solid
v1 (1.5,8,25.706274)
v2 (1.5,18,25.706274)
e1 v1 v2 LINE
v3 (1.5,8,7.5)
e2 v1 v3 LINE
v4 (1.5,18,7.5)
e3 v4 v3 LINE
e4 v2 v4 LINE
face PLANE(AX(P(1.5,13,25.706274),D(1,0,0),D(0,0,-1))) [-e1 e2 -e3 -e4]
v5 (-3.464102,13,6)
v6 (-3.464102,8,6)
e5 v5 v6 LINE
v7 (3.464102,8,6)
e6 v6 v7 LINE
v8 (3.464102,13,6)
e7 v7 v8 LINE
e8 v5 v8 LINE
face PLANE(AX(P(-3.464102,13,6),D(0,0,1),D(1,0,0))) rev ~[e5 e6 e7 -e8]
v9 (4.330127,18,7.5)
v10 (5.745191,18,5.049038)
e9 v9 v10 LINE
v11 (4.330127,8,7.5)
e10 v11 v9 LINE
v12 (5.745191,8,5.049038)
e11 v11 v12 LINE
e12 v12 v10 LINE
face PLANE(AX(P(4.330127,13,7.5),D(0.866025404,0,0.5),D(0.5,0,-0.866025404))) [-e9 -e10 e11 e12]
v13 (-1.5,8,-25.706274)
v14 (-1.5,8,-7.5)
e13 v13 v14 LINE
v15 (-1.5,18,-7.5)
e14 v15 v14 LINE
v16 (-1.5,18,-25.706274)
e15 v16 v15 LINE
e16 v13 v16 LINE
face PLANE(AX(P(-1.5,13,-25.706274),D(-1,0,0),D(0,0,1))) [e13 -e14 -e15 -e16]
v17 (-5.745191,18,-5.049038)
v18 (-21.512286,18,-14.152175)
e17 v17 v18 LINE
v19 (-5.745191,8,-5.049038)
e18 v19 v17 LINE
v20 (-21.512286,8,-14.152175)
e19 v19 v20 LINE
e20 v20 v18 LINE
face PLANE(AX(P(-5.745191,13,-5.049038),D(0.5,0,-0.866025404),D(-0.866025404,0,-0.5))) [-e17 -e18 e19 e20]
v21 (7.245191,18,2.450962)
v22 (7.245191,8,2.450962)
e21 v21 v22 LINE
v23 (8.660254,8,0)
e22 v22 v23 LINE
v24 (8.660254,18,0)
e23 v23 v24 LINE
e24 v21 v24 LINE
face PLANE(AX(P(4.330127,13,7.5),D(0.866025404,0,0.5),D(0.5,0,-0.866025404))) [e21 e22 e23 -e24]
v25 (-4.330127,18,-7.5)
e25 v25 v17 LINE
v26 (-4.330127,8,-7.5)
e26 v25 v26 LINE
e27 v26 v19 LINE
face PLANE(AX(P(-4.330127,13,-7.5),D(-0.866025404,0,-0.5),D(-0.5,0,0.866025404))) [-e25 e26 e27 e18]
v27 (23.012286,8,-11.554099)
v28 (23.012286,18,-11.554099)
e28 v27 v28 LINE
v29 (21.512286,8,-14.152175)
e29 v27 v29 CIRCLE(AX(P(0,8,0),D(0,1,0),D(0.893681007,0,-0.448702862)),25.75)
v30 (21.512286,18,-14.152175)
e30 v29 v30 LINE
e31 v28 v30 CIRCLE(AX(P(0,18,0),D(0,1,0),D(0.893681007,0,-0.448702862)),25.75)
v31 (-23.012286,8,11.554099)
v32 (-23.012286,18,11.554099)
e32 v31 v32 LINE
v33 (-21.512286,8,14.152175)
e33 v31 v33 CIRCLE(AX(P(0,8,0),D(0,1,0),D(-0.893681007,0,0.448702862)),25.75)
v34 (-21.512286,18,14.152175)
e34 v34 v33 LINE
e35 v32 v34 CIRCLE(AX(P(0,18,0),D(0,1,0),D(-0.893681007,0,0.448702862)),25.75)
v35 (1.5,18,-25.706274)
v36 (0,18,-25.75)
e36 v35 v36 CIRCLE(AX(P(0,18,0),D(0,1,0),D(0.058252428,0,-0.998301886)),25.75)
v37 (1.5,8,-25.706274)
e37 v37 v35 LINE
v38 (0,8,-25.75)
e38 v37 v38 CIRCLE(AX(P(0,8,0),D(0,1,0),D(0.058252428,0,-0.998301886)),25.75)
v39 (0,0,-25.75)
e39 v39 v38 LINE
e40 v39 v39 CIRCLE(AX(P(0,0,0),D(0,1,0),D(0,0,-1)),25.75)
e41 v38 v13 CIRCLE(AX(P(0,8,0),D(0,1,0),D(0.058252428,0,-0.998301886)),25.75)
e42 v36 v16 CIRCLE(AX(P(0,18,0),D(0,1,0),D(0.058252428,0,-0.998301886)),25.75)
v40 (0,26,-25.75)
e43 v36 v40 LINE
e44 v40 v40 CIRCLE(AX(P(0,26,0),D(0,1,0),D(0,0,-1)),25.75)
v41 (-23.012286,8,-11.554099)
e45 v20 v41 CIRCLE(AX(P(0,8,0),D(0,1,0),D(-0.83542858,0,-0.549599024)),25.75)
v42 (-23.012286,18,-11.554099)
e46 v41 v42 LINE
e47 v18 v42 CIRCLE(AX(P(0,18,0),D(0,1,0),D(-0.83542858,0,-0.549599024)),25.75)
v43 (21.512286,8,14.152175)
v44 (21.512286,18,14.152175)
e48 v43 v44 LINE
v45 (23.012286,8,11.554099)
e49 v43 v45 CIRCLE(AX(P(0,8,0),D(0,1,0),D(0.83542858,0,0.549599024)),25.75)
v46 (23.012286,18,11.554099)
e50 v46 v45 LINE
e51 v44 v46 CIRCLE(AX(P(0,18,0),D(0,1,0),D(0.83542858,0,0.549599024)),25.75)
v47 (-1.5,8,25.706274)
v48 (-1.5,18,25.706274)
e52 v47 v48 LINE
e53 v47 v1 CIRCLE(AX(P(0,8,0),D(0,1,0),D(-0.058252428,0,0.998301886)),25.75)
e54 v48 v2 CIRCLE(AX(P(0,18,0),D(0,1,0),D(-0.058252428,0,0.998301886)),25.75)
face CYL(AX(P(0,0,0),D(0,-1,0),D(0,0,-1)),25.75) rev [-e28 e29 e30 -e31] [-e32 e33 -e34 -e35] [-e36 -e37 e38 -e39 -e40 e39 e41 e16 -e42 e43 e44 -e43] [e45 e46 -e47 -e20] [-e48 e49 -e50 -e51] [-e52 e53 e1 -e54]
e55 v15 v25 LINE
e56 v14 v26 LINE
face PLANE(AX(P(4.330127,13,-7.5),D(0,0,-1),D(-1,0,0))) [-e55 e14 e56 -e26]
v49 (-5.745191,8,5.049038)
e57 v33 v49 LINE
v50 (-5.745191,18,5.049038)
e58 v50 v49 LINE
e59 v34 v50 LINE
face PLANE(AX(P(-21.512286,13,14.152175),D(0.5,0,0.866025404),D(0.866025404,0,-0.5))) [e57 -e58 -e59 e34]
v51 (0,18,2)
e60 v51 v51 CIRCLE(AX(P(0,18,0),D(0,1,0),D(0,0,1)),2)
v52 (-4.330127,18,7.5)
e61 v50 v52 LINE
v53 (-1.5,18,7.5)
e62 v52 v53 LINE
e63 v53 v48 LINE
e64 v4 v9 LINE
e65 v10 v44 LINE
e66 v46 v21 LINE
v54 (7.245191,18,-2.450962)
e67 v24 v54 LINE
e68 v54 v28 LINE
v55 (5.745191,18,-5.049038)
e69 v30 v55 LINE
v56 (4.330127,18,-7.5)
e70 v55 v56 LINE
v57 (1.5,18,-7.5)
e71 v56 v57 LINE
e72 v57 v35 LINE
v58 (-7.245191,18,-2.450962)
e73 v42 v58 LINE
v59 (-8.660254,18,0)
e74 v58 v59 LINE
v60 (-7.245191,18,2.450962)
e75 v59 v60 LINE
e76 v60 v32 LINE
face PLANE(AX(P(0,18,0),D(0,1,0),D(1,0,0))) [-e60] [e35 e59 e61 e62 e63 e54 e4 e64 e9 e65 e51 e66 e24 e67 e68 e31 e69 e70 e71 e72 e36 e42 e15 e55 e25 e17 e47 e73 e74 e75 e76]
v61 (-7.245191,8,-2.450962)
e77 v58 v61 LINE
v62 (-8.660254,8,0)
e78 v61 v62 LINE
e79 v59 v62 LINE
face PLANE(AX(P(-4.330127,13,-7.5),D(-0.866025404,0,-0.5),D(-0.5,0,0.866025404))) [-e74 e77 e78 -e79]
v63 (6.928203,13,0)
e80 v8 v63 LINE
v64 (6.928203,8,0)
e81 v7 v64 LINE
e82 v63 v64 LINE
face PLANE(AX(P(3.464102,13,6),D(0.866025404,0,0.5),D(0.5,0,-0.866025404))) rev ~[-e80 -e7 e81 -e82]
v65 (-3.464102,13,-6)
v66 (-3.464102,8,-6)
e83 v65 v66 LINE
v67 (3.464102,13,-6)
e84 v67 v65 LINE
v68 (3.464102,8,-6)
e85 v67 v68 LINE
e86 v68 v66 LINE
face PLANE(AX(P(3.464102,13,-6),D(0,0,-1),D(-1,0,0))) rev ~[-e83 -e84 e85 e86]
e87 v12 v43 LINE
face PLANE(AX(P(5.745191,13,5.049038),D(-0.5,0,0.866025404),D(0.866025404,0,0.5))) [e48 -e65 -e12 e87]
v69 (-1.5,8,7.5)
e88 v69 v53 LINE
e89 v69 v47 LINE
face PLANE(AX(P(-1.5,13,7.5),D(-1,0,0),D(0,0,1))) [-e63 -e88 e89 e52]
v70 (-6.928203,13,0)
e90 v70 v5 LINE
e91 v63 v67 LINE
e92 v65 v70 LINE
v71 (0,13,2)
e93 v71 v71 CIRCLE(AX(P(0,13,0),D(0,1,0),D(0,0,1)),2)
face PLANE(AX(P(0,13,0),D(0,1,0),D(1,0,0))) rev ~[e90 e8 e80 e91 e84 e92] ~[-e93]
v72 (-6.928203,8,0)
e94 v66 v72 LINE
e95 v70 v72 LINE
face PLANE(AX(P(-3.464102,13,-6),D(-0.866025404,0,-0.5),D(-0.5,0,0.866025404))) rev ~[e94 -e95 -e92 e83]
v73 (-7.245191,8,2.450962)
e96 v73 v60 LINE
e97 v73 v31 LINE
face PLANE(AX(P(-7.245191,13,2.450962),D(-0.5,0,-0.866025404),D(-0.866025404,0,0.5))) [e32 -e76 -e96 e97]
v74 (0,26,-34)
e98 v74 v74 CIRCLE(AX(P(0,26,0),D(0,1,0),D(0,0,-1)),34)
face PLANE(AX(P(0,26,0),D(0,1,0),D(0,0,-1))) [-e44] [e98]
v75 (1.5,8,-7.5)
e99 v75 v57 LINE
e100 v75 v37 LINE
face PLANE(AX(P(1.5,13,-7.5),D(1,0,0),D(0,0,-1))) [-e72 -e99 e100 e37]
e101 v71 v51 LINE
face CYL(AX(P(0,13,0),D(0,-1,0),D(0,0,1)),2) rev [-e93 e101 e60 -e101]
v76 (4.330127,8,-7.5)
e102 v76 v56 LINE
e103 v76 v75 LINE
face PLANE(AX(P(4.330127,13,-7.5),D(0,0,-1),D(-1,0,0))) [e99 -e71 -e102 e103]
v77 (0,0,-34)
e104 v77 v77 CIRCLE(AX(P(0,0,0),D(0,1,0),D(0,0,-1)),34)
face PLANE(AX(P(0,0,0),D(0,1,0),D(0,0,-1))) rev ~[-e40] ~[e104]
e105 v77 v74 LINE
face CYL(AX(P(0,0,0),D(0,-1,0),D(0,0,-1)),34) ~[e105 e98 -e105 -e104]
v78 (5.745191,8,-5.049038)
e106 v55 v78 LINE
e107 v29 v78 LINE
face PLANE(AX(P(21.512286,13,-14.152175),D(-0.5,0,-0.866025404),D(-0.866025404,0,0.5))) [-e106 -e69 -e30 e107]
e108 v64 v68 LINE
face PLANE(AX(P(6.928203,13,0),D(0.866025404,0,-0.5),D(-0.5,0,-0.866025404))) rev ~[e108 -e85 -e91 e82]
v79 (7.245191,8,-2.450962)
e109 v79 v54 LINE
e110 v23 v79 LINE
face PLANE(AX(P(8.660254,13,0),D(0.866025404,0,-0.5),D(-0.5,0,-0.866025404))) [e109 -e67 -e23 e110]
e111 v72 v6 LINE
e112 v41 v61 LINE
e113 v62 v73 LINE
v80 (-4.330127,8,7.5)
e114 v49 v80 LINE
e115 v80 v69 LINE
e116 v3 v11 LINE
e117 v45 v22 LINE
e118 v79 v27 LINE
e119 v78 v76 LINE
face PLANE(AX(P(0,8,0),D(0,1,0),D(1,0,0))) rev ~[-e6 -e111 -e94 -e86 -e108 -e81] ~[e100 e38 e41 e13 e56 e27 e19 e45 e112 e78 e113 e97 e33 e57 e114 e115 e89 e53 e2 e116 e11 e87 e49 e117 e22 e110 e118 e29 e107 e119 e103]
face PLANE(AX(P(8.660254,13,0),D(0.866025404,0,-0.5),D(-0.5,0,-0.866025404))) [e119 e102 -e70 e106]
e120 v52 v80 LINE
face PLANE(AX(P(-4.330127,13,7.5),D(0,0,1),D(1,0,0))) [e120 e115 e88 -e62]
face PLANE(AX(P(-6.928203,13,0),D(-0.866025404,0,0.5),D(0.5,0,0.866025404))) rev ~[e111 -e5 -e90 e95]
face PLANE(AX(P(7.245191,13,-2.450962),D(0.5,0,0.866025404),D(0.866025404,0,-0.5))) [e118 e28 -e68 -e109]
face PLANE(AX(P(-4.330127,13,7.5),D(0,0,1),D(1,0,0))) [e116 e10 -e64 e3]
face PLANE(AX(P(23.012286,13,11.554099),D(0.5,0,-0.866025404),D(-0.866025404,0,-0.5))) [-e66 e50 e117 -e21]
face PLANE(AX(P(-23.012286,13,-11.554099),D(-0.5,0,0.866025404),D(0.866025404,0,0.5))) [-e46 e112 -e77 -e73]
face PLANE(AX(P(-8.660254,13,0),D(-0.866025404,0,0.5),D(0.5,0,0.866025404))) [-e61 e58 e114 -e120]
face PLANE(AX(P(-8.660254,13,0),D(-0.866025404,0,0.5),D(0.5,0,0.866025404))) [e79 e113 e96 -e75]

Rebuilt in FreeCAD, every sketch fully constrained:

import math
import FreeCAD as App
import Part
import Sketcher
Q = App.Units.Quantity


def add_polygon(sketch, points):
    """Adds a closed chain of lines whose ends are joined by coincident constraints."""
    first, n = sketch.GeometryCount, len(points)
    for a, b in zip(points, points[1:] + points[:1]):
        sketch.addGeometry(Part.LineSegment(App.Vector(*a, 0), App.Vector(*b, 0)), False)
    for i in range(n):
        sketch.addConstraint(Sketcher.Constraint("Coincident", first + i, 2, first + (i + 1) % n, 1))

doc = App.newDocument("Part")
params = doc.addObject("Spreadsheet::Sheet", "Params")
for row, (alias, value) in enumerate([
    ("sketch1_diameter", "68 mm"),
    ("sketch1_diameter2", "51.5 mm"),
    ("pad1_length", "26 mm"),
    ("sketch2_radius", "25.75 mm"),
    ("pad2_length", "10 mm"),
    ("sketch3_diameter", "4 mm"),
    ("pad3_length", "5 mm"),
], start=1):
    params.set(f"A{row}", alias)
    params.set(f"B{row}", "=" + value)
    params.setAlias(f"B{row}", alias)

body = doc.addObject("PartDesign::Body", "Body")

# Sketch on XZ plane
sketch1 = doc.addObject("Sketcher::SketchObject", "Sketch")
body.addObject(sketch1)
sketch1.AttachmentSupport = (doc.XZ_Plane, [""])
sketch1.MapMode = "FlatFace"
sketch1.addGeometry([
    Part.Circle(App.Vector(0, 0, 0), App.Vector(0, 0, 1), 34),
    Part.Circle(App.Vector(0, 0, 0), App.Vector(0, 0, 1), 26),
], False)
sketch1.addConstraint([
    Sketcher.Constraint("Coincident", 0, 3, -1, 1),
    Sketcher.Constraint("Coincident", 1, 3, -1, 1),
    Sketcher.Constraint("Diameter", 0, Q("68 mm")),
    Sketcher.Constraint("Diameter", 1, Q("51.5 mm")),
])
sketch1.setExpression("Constraints[2]", "Params.sketch1_diameter")
sketch1.setExpression("Constraints[3]", "Params.sketch1_diameter2")
pad1 = doc.addObject("PartDesign::Pad", "Pad")
body.addObject(pad1)
pad1.Profile = sketch1
pad1.setExpression("Length", "Params.pad1_length")
pad1.Reversed = True

# Sketch on XZ plane
sketch2 = doc.addObject("Sketcher::SketchObject", "Sketch001")
body.addObject(sketch2)
sketch2.AttachmentSupport = (doc.XZ_Plane, [""])
sketch2.MapMode = "FlatFace"
sketch2.AttachmentOffset = App.Placement(App.Vector(0, 0, -13), App.Rotation())
sketch2.addGeometry(Part.LineSegment(App.Vector(7.2, -2.5, 0), App.Vector(23, -11.6, 0)), False)  # 0
sketch2.addGeometry(Part.ArcOfCircle(Part.Circle(App.Vector(0, 0, 0), App.Vector(0, 0, 1), 25.8), math.radians(-33.34), math.radians(-26.66)), False)  # 1
sketch2.addGeometry(Part.LineSegment(App.Vector(21.5, -14.2, 0), App.Vector(5.7, -5, 0)), False)  # 2
sketch2.addGeometry(Part.LineSegment(App.Vector(5.7, -5, 0), App.Vector(4.3, -7.5, 0)), False)  # 3
sketch2.addGeometry(Part.LineSegment(App.Vector(4.3, -7.5, 0), App.Vector(1.5, -7.5, 0)), False)  # 4
sketch2.addGeometry(Part.LineSegment(App.Vector(1.5, -7.5, 0), App.Vector(1.5, -25.7, 0)), False)  # 5
sketch2.addGeometry(Part.ArcOfCircle(Part.Circle(App.Vector(0, 0, 0), App.Vector(0, 0, 1), 25.7), math.radians(-93.34), math.radians(-86.66)), False)  # 6
sketch2.addGeometry(Part.LineSegment(App.Vector(-1.5, -25.7, 0), App.Vector(-1.5, -7.5, 0)), False)  # 7
sketch2.addGeometry(Part.LineSegment(App.Vector(-1.5, -7.5, 0), App.Vector(-4.3, -7.5, 0)), False)  # 8
sketch2.addGeometry(Part.LineSegment(App.Vector(-4.3, -7.5, 0), App.Vector(-5.7, -5, 0)), False)  # 9
sketch2.addGeometry(Part.LineSegment(App.Vector(-5.7, -5, 0), App.Vector(-21.5, -14.2, 0)), False)  # 10
sketch2.addGeometry(Part.ArcOfCircle(Part.Circle(App.Vector(0, 0, 0), App.Vector(0, 0, 1), 25.8), math.radians(-153.34), math.radians(-146.66)), False)  # 11
sketch2.addGeometry(Part.LineSegment(App.Vector(-23, -11.6, 0), App.Vector(-7.2, -2.5, 0)), False)  # 12
sketch2.addGeometry(Part.LineSegment(App.Vector(-7.2, -2.5, 0), App.Vector(-8.7, 0, 0)), False)  # 13
sketch2.addGeometry(Part.LineSegment(App.Vector(-8.7, 0, 0), App.Vector(-7.2, 2.5, 0)), False)  # 14
sketch2.addGeometry(Part.LineSegment(App.Vector(-7.2, 2.5, 0), App.Vector(-23, 11.6, 0)), False)  # 15
sketch2.addGeometry(Part.ArcOfCircle(Part.Circle(App.Vector(0, 0, 0), App.Vector(0, 0, 1), 25.8), math.radians(146.66), math.radians(153.34)), False)  # 16
sketch2.addGeometry(Part.LineSegment(App.Vector(-21.5, 14.2, 0), App.Vector(-5.7, 5, 0)), False)  # 17
sketch2.addGeometry(Part.LineSegment(App.Vector(-5.7, 5, 0), App.Vector(-4.3, 7.5, 0)), False)  # 18
sketch2.addGeometry(Part.LineSegment(App.Vector(-4.3, 7.5, 0), App.Vector(-1.5, 7.5, 0)), False)  # 19
sketch2.addGeometry(Part.LineSegment(App.Vector(-1.5, 7.5, 0), App.Vector(-1.5, 25.7, 0)), False)  # 20
sketch2.addGeometry(Part.ArcOfCircle(Part.Circle(App.Vector(0, 0, 0), App.Vector(0, 0, 1), 25.7), math.radians(86.66), math.radians(93.34)), False)  # 21
sketch2.addGeometry(Part.LineSegment(App.Vector(1.5, 25.7, 0), App.Vector(1.5, 7.5, 0)), False)  # 22
sketch2.addGeometry(Part.LineSegment(App.Vector(1.5, 7.5, 0), App.Vector(4.3, 7.5, 0)), False)  # 23
sketch2.addGeometry(Part.LineSegment(App.Vector(4.3, 7.5, 0), App.Vector(5.7, 5, 0)), False)  # 24
sketch2.addGeometry(Part.LineSegment(App.Vector(5.7, 5, 0), App.Vector(21.5, 14.2, 0)), False)  # 25
sketch2.addGeometry(Part.ArcOfCircle(Part.Circle(App.Vector(0, 0, 0), App.Vector(0, 0, 1), 25.8), math.radians(26.66), math.radians(33.34)), False)  # 26
sketch2.addGeometry(Part.LineSegment(App.Vector(23, 11.6, 0), App.Vector(7.2, 2.5, 0)), False)  # 27
sketch2.addGeometry(Part.LineSegment(App.Vector(7.2, 2.5, 0), App.Vector(8.7, 0, 0)), False)  # 28
sketch2.addGeometry(Part.LineSegment(App.Vector(8.7, 0, 0), App.Vector(7.2, -2.5, 0)), False)  # 29
add_polygon(sketch2, [(3.5, 6), (-3.5, 6), (-6.9, 0), (-3.5, -6), (3.5, -6), (6.9, 0)])  # lines 30-35
sketch2.addConstraint([
    Sketcher.Constraint("Coincident", 0, 2, 1, 2),
    Sketcher.Constraint("Coincident", 1, 1, 2, 1),
    Sketcher.Constraint("Coincident", 2, 2, 3, 1),
    Sketcher.Constraint("Coincident", 3, 2, 4, 1),
    Sketcher.Constraint("Coincident", 4, 2, 5, 1),
    Sketcher.Constraint("Coincident", 5, 2, 6, 2),
    Sketcher.Constraint("Coincident", 6, 1, 7, 1),
    Sketcher.Constraint("Coincident", 7, 2, 8, 1),
    Sketcher.Constraint("Coincident", 8, 2, 9, 1),
    Sketcher.Constraint("Coincident", 9, 2, 10, 1),
    Sketcher.Constraint("Coincident", 10, 2, 11, 2),
    Sketcher.Constraint("Coincident", 11, 1, 12, 1),
    Sketcher.Constraint("Coincident", 12, 2, 13, 1),
    Sketcher.Constraint("Coincident", 13, 2, 14, 1),
    Sketcher.Constraint("Coincident", 14, 2, 15, 1),
    Sketcher.Constraint("Coincident", 15, 2, 16, 2),
    Sketcher.Constraint("Coincident", 16, 1, 17, 1),
    Sketcher.Constraint("Coincident", 17, 2, 18, 1),
    Sketcher.Constraint("Coincident", 18, 2, 19, 1),
    Sketcher.Constraint("Coincident", 19, 2, 20, 1),
    Sketcher.Constraint("Coincident", 20, 2, 21, 2),
    Sketcher.Constraint("Coincident", 21, 1, 22, 1),
    Sketcher.Constraint("Coincident", 22, 2, 23, 1),
    Sketcher.Constraint("Coincident", 23, 2, 24, 1),
    Sketcher.Constraint("Coincident", 24, 2, 25, 1),
    Sketcher.Constraint("Coincident", 25, 2, 26, 2),
    Sketcher.Constraint("Coincident", 26, 1, 27, 1),
    Sketcher.Constraint("Coincident", 27, 2, 28, 1),
    Sketcher.Constraint("Coincident", 28, 2, 29, 1),
    Sketcher.Constraint("Coincident", 29, 2, 0, 1),
    Sketcher.Constraint("Horizontal", 4),
    Sketcher.Constraint("Vertical", 5),
    Sketcher.Constraint("Vertical", 7),
    Sketcher.Constraint("Horizontal", 8),
    Sketcher.Constraint("Horizontal", 19),
    Sketcher.Constraint("Vertical", 20),
    Sketcher.Constraint("Vertical", 22),
    Sketcher.Constraint("Horizontal", 23),
    Sketcher.Constraint("Horizontal", 30),
    Sketcher.Constraint("Horizontal", 33),
    Sketcher.Constraint("Coincident", 1, 3, -1, 1),
    Sketcher.Constraint("Coincident", 6, 3, -1, 1),
    Sketcher.Constraint("Coincident", 11, 3, -1, 1),
    Sketcher.Constraint("Coincident", 16, 3, -1, 1),
    Sketcher.Constraint("Coincident", 21, 3, -1, 1),
    Sketcher.Constraint("Coincident", 26, 3, -1, 1),
    Sketcher.Constraint("Equal", 1, 6),
    Sketcher.Constraint("Equal", 6, 11),
    Sketcher.Constraint("Equal", 11, 16),
    Sketcher.Constraint("Equal", 16, 21),
    Sketcher.Constraint("Equal", 21, 26),
    Sketcher.Constraint("Symmetric", 2, 2, 17, 2, -1, 1),
    Sketcher.Constraint("Symmetric", 3, 2, 18, 2, -1, 1),
    Sketcher.Constraint("Symmetric", 7, 2, 22, 2, -1, 1),
    Sketcher.Constraint("Symmetric", 9, 2, 24, 2, -1, 1),
    Sketcher.Constraint("Symmetric", 12, 2, 27, 2, -1, 1),
    Sketcher.Constraint("Symmetric", 13, 2, 28, 2, -1, 1),
    Sketcher.Constraint("Symmetric", 14, 2, 29, 2, -1, 1),
    Sketcher.Constraint("Symmetric", 30, 2, 33, 2, -1, 1),
    Sketcher.Constraint("Symmetric", 31, 2, 34, 2, -1, 1),
    Sketcher.Constraint("Symmetric", 4, 2, 7, 2, -2),
    Sketcher.Constraint("Symmetric", 2, 2, 9, 2, -2),
    Sketcher.Constraint("Symmetric", 14, 2, 27, 2, -2),
    Sketcher.Constraint("PointOnObject", 13, 2, -1),
    Sketcher.Constraint("PointOnObject", 31, 2, -1),
    Sketcher.Constraint("Parallel", 0, 2),
    Sketcher.Constraint("Perpendicular", 2, 3),
    Sketcher.Constraint("Perpendicular", 9, 10),
    Sketcher.Constraint("Parallel", 10, 12),
    Sketcher.Constraint("Perpendicular", 12, 13),
    Sketcher.Constraint("Parallel", 3, 14),
    Sketcher.Constraint("Perpendicular", 14, 15),
    Sketcher.Constraint("Parallel", 15, 17),
    Sketcher.Constraint("Parallel", 13, 24),
    Sketcher.Constraint("Perpendicular", 24, 25),
    Sketcher.Constraint("Parallel", 25, 27),
    Sketcher.Constraint("Parallel", 29, 31),
    Sketcher.Constraint("Parallel", 28, 32),
    Sketcher.Constraint("Parallel", 32, 35),
    Sketcher.Constraint("Horizontal", 20, 2, 21, 1),
    Sketcher.Constraint("Equal", 0, 2),
    Sketcher.Constraint("Equal", 9, 13),
    Sketcher.Constraint("Angle", 0, Q("-30 deg")),
    Sketcher.Constraint("Radius", 1, Q("25.75 mm")),
    Sketcher.Constraint("DistanceY", -1, 1, 30, 2, Q("6 mm")),
    Sketcher.Constraint("DistanceX", 6, 1, 5, 2, Q("3 mm")),
    Sketcher.Constraint("DistanceY", 3, 2, -1, 1, Q("7.5 mm")),
    Sketcher.Constraint("DistanceX", 1, 1, 0, 2, Q("1.5 mm")),
    Sketcher.Constraint("DistanceY", 0, 2, -1, 1, Q("11.554099 mm")),
    Sketcher.Constraint("DistanceX", 30, 2, -1, 1, Q("3.464102 mm")),
])
sketch2.setExpression("Constraints[89]", "Params.sketch2_radius")
pad2 = doc.addObject("PartDesign::Pad", "Pad001")
body.addObject(pad2)
pad2.Profile = sketch2
pad2.setExpression("Length", "Params.pad2_length")
pad2.Midplane = True

# Sketch on XZ plane
sketch3 = doc.addObject("Sketcher::SketchObject", "Sketch002")
body.addObject(sketch3)
sketch3.AttachmentSupport = (doc.XZ_Plane, [""])
sketch3.MapMode = "FlatFace"
sketch3.AttachmentOffset = App.Placement(App.Vector(0, 0, -13), App.Rotation())
add_polygon(sketch3, [(3.5, 6), (6.9, 0), (3.5, -6), (-3.5, -6), (-6.9, 0), (-3.5, 6)])  # lines 0-5
sketch3.addGeometry(Part.Circle(App.Vector(0, 0, 0), App.Vector(0, 0, 1), 2), False)  # 6
sketch3.addConstraint([
    Sketcher.Constraint("Horizontal", 2),
    Sketcher.Constraint("Horizontal", 5),
    Sketcher.Constraint("Coincident", 6, 3, -1, 1),
    Sketcher.Constraint("Symmetric", 0, 2, 3, 2, -1, 1),
    Sketcher.Constraint("Symmetric", 1, 2, 4, 2, -1, 1),
    Sketcher.Constraint("PointOnObject", 0, 2, -1),
    Sketcher.Constraint("Parallel", 0, 3),
    Sketcher.Constraint("Vertical", 2, 2, 4, 2),
    Sketcher.Constraint("Diameter", 6, Q("4 mm")),
    Sketcher.Constraint("Angle", 0, Q("-60 deg")),
    Sketcher.Constraint("DistanceY", 1, 2, -1, 1, Q("6 mm")),
    Sketcher.Constraint("DistanceX", -1, 1, 1, 2, Q("3.464102 mm")),
])
sketch3.setExpression("Constraints[14]", "Params.sketch3_diameter")
pad3 = doc.addObject("PartDesign::Pad", "Pad002")
body.addObject(pad3)
pad3.Profile = sketch3
pad3.setExpression("Length", "Params.pad3_length")
pad3.Reversed = True

doc.recompute()
